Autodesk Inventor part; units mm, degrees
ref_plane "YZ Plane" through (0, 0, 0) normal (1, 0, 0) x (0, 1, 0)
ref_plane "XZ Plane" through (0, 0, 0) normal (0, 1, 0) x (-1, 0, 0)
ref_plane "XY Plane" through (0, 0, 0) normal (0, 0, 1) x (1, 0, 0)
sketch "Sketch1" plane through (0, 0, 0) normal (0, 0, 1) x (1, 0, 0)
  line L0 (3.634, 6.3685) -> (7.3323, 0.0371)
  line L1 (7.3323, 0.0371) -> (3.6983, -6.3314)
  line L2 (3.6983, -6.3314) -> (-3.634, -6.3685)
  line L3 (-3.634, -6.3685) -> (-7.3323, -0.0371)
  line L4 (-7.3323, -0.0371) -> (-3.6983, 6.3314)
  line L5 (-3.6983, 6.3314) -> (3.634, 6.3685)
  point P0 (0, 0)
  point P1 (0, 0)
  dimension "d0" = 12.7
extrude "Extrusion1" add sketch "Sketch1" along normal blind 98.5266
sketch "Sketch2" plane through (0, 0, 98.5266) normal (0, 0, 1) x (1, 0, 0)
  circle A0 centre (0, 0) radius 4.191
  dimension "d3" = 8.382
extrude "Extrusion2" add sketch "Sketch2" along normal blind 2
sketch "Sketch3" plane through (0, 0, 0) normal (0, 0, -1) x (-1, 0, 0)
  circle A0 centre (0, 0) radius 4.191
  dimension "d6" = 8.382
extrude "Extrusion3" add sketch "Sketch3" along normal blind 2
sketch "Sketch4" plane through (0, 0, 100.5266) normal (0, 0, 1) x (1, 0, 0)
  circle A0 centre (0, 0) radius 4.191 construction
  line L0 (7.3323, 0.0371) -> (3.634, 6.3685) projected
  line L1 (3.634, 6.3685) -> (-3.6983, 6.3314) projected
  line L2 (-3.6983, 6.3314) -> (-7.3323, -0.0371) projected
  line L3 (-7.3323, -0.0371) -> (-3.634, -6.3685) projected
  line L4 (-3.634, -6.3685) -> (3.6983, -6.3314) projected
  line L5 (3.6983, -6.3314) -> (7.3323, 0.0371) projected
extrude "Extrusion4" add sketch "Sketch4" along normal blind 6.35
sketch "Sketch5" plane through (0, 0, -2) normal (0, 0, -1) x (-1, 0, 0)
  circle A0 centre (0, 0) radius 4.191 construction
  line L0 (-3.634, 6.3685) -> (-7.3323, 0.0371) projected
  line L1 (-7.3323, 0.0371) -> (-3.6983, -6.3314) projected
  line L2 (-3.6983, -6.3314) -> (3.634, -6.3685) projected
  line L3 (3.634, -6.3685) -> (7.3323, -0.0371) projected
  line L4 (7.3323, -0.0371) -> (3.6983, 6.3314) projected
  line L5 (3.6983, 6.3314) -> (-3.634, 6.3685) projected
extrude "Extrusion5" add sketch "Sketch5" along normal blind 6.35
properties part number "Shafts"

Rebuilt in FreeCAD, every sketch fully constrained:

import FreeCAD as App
import Part
import Sketcher
Q = App.Units.Quantity

doc = App.newDocument("Part")
body = doc.addObject("PartDesign::Body", "Body")

sketch1 = doc.addObject("Sketcher::SketchObject", "Sketch")
body.addObject(sketch1)
sketch1.AttachmentSupport = (doc.XY_Plane, [""])
sketch1.MapMode = "FlatFace"
sketch1.addGeometry([
    Part.LineSegment(App.Vector(7.3323, 0.0371, 0), App.Vector(3.634, 6.3685, 0)),
    Part.LineSegment(App.Vector(3.634, 6.3685, 0), App.Vector(-3.6983, 6.3314, 0)),
    Part.LineSegment(App.Vector(-3.6983, 6.3314, 0), App.Vector(-7.3323, -0.0371, 0)),
    Part.LineSegment(App.Vector(-7.3323, -0.0371, 0), App.Vector(-3.634, -6.3685, 0)),
    Part.LineSegment(App.Vector(-3.634, -6.3685, 0), App.Vector(3.6983, -6.3314, 0)),
    Part.LineSegment(App.Vector(3.6983, -6.3314, 0), App.Vector(7.3323, 0.0371, 0)),
], False)
sketch1.addConstraint([
    Sketcher.Constraint("Coincident", 0, 2, 1, 1),
    Sketcher.Constraint("Coincident", 1, 2, 2, 1),
    Sketcher.Constraint("Coincident", 2, 2, 3, 1),
    Sketcher.Constraint("Coincident", 3, 2, 4, 1),
    Sketcher.Constraint("Coincident", 4, 2, 5, 1),
    Sketcher.Constraint("Coincident", 5, 2, 0, 1),
    Sketcher.Constraint("Symmetric", 0, 2, 3, 2, -1, 1),
    Sketcher.Constraint("Symmetric", 1, 2, 4, 2, -1, 1),
    Sketcher.Constraint("Symmetric", 2, 2, 5, 2, -1, 1),
    Sketcher.Constraint("Equal", 0, 1),
    Sketcher.Constraint("Equal", 1, 2),
    Sketcher.Constraint("DistanceY", 3, 2, 1, 2, Q("0.5 in")),
    Sketcher.Constraint("Angle", 0, Q("120.29 deg")),
    Sketcher.Constraint("Angle", 1, Q("-179.71 deg")),
    Sketcher.Constraint("Angle", 2, Q("-119.71 deg")),
])
pad1 = doc.addObject("PartDesign::Pad", "Pad")
body.addObject(pad1)
pad1.Profile = sketch1
pad1.Length = Q("3.879 in")

sketch2 = doc.addObject("Sketcher::SketchObject", "Sketch001")
body.addObject(sketch2)
sketch2.AttachmentSupport = (doc.XY_Plane, [""])
sketch2.MapMode = "FlatFace"
sketch2.AttachmentOffset = App.Placement(App.Vector(0, 0, 3.879 * 25.4), App.Rotation())
sketch2.addGeometry(Part.Circle(App.Vector(0, 0, 0), App.Vector(0, 0, 1), 4.191), False)
sketch2.addConstraint([
    Sketcher.Constraint("Coincident", 0, 3, -1, 1),
    Sketcher.Constraint("Diameter", 0, Q("0.33 in")),
])
pad2 = doc.addObject("PartDesign::Pad", "Pad001")
body.addObject(pad2)
pad2.Profile = sketch2
pad2.Length = 2

sketch3 = doc.addObject("Sketcher::SketchObject", "Sketch002")
body.addObject(sketch3)
sketch3.AttachmentSupport = (doc.XY_Plane, [""])
sketch3.MapMode = "FlatFace"
sketch3.addGeometry(Part.Circle(App.Vector(0, 0, 0), App.Vector(0, 0, 1), 4.191), False)
sketch3.addConstraint([
    Sketcher.Constraint("Coincident", 0, 3, -1, 1),
    Sketcher.Constraint("Diameter", 0, Q("0.33 in")),
])
pad3 = doc.addObject("PartDesign::Pad", "Pad002")
body.addObject(pad3)
pad3.Profile = sketch3
pad3.Length = 2
pad3.Reversed = True

sketch4 = doc.addObject("Sketcher::SketchObject", "Sketch003")
body.addObject(sketch4)
sketch4.AttachmentSupport = (doc.XY_Plane, [""])
sketch4.MapMode = "FlatFace"
sketch4.AttachmentOffset = App.Placement(App.Vector(0, 0, 100.5266), App.Rotation())
sketch4.addGeometry([
    Part.LineSegment(App.Vector(3.6983, -6.3314, 0), App.Vector(7.3323, 0.0371, 0)),
    Part.LineSegment(App.Vector(7.3323, 0.0371, 0), App.Vector(3.634, 6.3685, 0)),
    Part.LineSegment(App.Vector(3.634, 6.3685, 0), App.Vector(-3.6983, 6.3314, 0)),
    Part.LineSegment(App.Vector(-3.6983, 6.3314, 0), App.Vector(-7.3323, -0.0371, 0)),
    Part.LineSegment(App.Vector(-7.3323, -0.0371, 0), App.Vector(-3.634, -6.3685, 0)),
    Part.LineSegment(App.Vector(-3.634, -6.3685, 0), App.Vector(3.6983, -6.3314, 0)),
], False)
sketch4.addConstraint([
    Sketcher.Constraint("Coincident", 0, 2, 1, 1),
    Sketcher.Constraint("Coincident", 1, 2, 2, 1),
    Sketcher.Constraint("Coincident", 2, 2, 3, 1),
    Sketcher.Constraint("Coincident", 3, 2, 4, 1),
    Sketcher.Constraint("Coincident", 4, 2, 5, 1),
    Sketcher.Constraint("Coincident", 5, 2, 0, 1),
    Sketcher.Constraint("Symmetric", 0, 2, 3, 2, -1, 1),
    Sketcher.Constraint("Symmetric", 1, 2, 4, 2, -1, 1),
    Sketcher.Constraint("Symmetric", 2, 2, 5, 2, -1, 1),
    Sketcher.Constraint("Equal", 0, 1),
    Sketcher.Constraint("Equal", 1, 2),
    Sketcher.Constraint("DistanceY", 4, 2, 2, 2, Q("0.5 in")),
    Sketcher.Constraint("Angle", 0, Q("60.29 deg")),
    Sketcher.Constraint("Angle", 1, Q("120.29 deg")),
    Sketcher.Constraint("Angle", 2, Q("-179.71 deg")),
])
pad4 = doc.addObject("PartDesign::Pad", "Pad003")
body.addObject(pad4)
pad4.Profile = sketch4
pad4.Length = Q("0.25 in")

sketch5 = doc.addObject("Sketcher::SketchObject", "Sketch004")
body.addObject(sketch5)
sketch5.AttachmentSupport = (doc.XY_Plane, [""])
sketch5.MapMode = "FlatFace"
sketch5.AttachmentOffset = App.Placement(App.Vector(0, 0, -2), App.Rotation())
sketch5.addGeometry([
    Part.LineSegment(App.Vector(-3.6983, 6.3314, 0), App.Vector(3.634, 6.3685, 0)),
    Part.LineSegment(App.Vector(3.634, 6.3685, 0), App.Vector(7.3323, 0.0371, 0)),
    Part.LineSegment(App.Vector(7.3323, 0.0371, 0), App.Vector(3.6983, -6.3314, 0)),
    Part.LineSegment(App.Vector(3.6983, -6.3314, 0), App.Vector(-3.634, -6.3685, 0)),
    Part.LineSegment(App.Vector(-3.634, -6.3685, 0), App.Vector(-7.3323, -0.0371, 0)),
    Part.LineSegment(App.Vector(-7.3323, -0.0371, 0), App.Vector(-3.6983, 6.3314, 0)),
], False)
sketch5.addConstraint([
    Sketcher.Constraint("Coincident", 0, 2, 1, 1),
    Sketcher.Constraint("Coincident", 1, 2, 2, 1),
    Sketcher.Constraint("Coincident", 2, 2, 3, 1),
    Sketcher.Constraint("Coincident", 3, 2, 4, 1),
    Sketcher.Constraint("Coincident", 4, 2, 5, 1),
    Sketcher.Constraint("Coincident", 5, 2, 0, 1),
    Sketcher.Constraint("Symmetric", 0, 2, 3, 2, -1, 1),
    Sketcher.Constraint("Symmetric", 1, 2, 4, 2, -1, 1),
    Sketcher.Constraint("Symmetric", 2, 2, 5, 2, -1, 1),
    Sketcher.Constraint("Equal", 0, 1),
    Sketcher.Constraint("Equal", 1, 2),
    Sketcher.Constraint("DistanceY", 2, 2, 0, 2, Q("0.5 in")),
    Sketcher.Constraint("Angle", 0, Q("0.29 deg")),
    Sketcher.Constraint("Angle", 1, Q("-59.71 deg")),
    Sketcher.Constraint("Angle", 2, Q("-119.71 deg")),
])
pad5 = doc.addObject("PartDesign::Pad", "Pad004")
body.addObject(pad5)
pad5.Profile = sketch5
pad5.Length = Q("0.25 in")
pad5.Reversed = True

doc.recompute()
